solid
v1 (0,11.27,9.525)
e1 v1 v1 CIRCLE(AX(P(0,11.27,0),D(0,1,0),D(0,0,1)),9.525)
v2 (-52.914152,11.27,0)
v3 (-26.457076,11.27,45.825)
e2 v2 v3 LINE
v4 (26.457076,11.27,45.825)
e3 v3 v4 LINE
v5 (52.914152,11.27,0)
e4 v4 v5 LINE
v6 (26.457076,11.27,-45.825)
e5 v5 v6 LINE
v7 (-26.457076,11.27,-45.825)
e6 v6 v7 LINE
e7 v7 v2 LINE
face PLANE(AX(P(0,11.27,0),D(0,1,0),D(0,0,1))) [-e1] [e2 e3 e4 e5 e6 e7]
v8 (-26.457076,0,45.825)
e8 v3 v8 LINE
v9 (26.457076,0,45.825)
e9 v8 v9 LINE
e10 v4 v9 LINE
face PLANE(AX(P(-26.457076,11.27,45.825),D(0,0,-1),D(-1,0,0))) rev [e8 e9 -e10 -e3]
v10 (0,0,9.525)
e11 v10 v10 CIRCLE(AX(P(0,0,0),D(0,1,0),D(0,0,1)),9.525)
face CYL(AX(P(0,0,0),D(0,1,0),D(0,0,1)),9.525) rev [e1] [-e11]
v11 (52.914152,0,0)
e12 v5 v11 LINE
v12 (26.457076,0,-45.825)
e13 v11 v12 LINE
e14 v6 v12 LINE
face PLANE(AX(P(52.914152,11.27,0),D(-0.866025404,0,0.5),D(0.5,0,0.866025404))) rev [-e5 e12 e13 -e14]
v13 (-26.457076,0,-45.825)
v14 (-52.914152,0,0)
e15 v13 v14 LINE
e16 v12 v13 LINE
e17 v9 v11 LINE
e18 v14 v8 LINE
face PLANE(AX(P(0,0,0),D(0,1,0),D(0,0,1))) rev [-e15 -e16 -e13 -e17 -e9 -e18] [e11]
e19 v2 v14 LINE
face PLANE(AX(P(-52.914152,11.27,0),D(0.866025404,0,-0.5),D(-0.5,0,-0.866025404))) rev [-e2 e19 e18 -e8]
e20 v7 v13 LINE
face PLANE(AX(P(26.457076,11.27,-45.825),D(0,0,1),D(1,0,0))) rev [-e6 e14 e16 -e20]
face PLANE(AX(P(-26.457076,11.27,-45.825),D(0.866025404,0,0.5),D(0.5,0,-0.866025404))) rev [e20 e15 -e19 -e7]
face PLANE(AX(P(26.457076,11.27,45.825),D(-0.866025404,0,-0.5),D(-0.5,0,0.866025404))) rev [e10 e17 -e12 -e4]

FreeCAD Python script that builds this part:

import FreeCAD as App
import Part
import Sketcher
from FreeCAD import Vector
Q = App.Units.Quantity

doc = App.newDocument("Part")
params = doc.addObject("Spreadsheet::Sheet", "Params")
for row, (alias, value) in enumerate([
    ("pad1_length", "11.27 mm"),
    ("sketch2_diameter", "0.75 in"),
], start=1):
    params.set(f"A{row}", alias)
    params.set(f"B{row}", "=" + value)
    params.setAlias(f"B{row}", alias)

body = doc.addObject("PartDesign::Body", "Body")

# Sketch on XZ plane
sketch1 = body.newObject("Sketcher::SketchObject", "Sketch")
sketch1.AttachmentSupport = (doc.getObject("XZ_Plane"), [""])
sketch1.MapMode = "FlatFace"
sketch1.addGeometry(Part.LineSegment(Vector(26.457076, -45.825, 0), Vector(-26.457076, -45.825, 0)), False)
sketch1.addGeometry(Part.LineSegment(Vector(-26.457076, -45.825, 0), Vector(-52.914152, 0, 0)), False)
sketch1.addGeometry(Part.LineSegment(Vector(-52.914152, 0, 0), Vector(-26.457076, 45.825, 0)), False)
sketch1.addGeometry(Part.LineSegment(Vector(-26.457076, 45.825, 0), Vector(26.457076, 45.825, 0)), False)
sketch1.addGeometry(Part.LineSegment(Vector(26.457076, 45.825, 0), Vector(52.914152, 0, 0)), False)
sketch1.addGeometry(Part.LineSegment(Vector(52.914152, 0, 0), Vector(26.457076, -45.825, 0)), False)
sketch1.addConstraint(Sketcher.Constraint("Coincident", 0, 2, 1, 1))
sketch1.addConstraint(Sketcher.Constraint("Coincident", 1, 2, 2, 1))
sketch1.addConstraint(Sketcher.Constraint("Coincident", 2, 2, 3, 1))
sketch1.addConstraint(Sketcher.Constraint("Coincident", 3, 2, 4, 1))
sketch1.addConstraint(Sketcher.Constraint("Coincident", 4, 2, 5, 1))
sketch1.addConstraint(Sketcher.Constraint("Coincident", 5, 2, 0, 1))
sketch1.addConstraint(Sketcher.Constraint("Horizontal", 0))
sketch1.addConstraint(Sketcher.Constraint("Horizontal", 3))
sketch1.addConstraint(Sketcher.Constraint("Symmetric", 0, 2, 3, 2, -1, 1))
sketch1.addConstraint(Sketcher.Constraint("Symmetric", 1, 2, 4, 2, -1, 1))
sketch1.addConstraint(Sketcher.Constraint("PointOnObject", 1, 2, -1))
sketch1.addConstraint(Sketcher.Constraint("Parallel", 2, 5))
sketch1.addConstraint(Sketcher.Constraint("Vertical", 0, 2, 2, 2))
sketch1.addConstraint(Sketcher.Constraint("Angle", 1, Q("120 deg")))
sketch1.addConstraint(Sketcher.Constraint("DistanceY", 0, 2, -1, 1, 45.825))
sketch1.addConstraint(Sketcher.Constraint("DistanceX", 0, 2, 0, 1, 52.914152))
pad1 = body.newObject("PartDesign::Pad", "Pad")
pad1.Profile = sketch1
pad1.setExpression("Length", "Params.pad1_length")
pad1.Reversed = True

# Sketch on XZ plane
sketch2 = body.newObject("Sketcher::SketchObject", "Sketch001")
sketch2.AttachmentSupport = (doc.getObject("XZ_Plane"), [""])
sketch2.MapMode = "FlatFace"
sketch2.AttachmentOffset = App.Placement(Vector(0, 0, -11.27), App.Rotation())
sketch2.addGeometry(Part.Circle(Vector(0, 0, 0), Vector(0, 0, 1), 9.525), False)
sketch2.addConstraint(Sketcher.Constraint("Coincident", 0, 3, -1, 1))
sketch2.addConstraint(Sketcher.Constraint("Diameter", 0, Q("0.75 in")))
sketch2.setExpression("Constraints[1]", "Params.sketch2_diameter")
pocket1 = body.newObject("PartDesign::Pocket", "Pocket")
pocket1.Profile = sketch2
pocket1.Type = "ThroughAll"
pocket1.Reversed = True

doc.recompute()
